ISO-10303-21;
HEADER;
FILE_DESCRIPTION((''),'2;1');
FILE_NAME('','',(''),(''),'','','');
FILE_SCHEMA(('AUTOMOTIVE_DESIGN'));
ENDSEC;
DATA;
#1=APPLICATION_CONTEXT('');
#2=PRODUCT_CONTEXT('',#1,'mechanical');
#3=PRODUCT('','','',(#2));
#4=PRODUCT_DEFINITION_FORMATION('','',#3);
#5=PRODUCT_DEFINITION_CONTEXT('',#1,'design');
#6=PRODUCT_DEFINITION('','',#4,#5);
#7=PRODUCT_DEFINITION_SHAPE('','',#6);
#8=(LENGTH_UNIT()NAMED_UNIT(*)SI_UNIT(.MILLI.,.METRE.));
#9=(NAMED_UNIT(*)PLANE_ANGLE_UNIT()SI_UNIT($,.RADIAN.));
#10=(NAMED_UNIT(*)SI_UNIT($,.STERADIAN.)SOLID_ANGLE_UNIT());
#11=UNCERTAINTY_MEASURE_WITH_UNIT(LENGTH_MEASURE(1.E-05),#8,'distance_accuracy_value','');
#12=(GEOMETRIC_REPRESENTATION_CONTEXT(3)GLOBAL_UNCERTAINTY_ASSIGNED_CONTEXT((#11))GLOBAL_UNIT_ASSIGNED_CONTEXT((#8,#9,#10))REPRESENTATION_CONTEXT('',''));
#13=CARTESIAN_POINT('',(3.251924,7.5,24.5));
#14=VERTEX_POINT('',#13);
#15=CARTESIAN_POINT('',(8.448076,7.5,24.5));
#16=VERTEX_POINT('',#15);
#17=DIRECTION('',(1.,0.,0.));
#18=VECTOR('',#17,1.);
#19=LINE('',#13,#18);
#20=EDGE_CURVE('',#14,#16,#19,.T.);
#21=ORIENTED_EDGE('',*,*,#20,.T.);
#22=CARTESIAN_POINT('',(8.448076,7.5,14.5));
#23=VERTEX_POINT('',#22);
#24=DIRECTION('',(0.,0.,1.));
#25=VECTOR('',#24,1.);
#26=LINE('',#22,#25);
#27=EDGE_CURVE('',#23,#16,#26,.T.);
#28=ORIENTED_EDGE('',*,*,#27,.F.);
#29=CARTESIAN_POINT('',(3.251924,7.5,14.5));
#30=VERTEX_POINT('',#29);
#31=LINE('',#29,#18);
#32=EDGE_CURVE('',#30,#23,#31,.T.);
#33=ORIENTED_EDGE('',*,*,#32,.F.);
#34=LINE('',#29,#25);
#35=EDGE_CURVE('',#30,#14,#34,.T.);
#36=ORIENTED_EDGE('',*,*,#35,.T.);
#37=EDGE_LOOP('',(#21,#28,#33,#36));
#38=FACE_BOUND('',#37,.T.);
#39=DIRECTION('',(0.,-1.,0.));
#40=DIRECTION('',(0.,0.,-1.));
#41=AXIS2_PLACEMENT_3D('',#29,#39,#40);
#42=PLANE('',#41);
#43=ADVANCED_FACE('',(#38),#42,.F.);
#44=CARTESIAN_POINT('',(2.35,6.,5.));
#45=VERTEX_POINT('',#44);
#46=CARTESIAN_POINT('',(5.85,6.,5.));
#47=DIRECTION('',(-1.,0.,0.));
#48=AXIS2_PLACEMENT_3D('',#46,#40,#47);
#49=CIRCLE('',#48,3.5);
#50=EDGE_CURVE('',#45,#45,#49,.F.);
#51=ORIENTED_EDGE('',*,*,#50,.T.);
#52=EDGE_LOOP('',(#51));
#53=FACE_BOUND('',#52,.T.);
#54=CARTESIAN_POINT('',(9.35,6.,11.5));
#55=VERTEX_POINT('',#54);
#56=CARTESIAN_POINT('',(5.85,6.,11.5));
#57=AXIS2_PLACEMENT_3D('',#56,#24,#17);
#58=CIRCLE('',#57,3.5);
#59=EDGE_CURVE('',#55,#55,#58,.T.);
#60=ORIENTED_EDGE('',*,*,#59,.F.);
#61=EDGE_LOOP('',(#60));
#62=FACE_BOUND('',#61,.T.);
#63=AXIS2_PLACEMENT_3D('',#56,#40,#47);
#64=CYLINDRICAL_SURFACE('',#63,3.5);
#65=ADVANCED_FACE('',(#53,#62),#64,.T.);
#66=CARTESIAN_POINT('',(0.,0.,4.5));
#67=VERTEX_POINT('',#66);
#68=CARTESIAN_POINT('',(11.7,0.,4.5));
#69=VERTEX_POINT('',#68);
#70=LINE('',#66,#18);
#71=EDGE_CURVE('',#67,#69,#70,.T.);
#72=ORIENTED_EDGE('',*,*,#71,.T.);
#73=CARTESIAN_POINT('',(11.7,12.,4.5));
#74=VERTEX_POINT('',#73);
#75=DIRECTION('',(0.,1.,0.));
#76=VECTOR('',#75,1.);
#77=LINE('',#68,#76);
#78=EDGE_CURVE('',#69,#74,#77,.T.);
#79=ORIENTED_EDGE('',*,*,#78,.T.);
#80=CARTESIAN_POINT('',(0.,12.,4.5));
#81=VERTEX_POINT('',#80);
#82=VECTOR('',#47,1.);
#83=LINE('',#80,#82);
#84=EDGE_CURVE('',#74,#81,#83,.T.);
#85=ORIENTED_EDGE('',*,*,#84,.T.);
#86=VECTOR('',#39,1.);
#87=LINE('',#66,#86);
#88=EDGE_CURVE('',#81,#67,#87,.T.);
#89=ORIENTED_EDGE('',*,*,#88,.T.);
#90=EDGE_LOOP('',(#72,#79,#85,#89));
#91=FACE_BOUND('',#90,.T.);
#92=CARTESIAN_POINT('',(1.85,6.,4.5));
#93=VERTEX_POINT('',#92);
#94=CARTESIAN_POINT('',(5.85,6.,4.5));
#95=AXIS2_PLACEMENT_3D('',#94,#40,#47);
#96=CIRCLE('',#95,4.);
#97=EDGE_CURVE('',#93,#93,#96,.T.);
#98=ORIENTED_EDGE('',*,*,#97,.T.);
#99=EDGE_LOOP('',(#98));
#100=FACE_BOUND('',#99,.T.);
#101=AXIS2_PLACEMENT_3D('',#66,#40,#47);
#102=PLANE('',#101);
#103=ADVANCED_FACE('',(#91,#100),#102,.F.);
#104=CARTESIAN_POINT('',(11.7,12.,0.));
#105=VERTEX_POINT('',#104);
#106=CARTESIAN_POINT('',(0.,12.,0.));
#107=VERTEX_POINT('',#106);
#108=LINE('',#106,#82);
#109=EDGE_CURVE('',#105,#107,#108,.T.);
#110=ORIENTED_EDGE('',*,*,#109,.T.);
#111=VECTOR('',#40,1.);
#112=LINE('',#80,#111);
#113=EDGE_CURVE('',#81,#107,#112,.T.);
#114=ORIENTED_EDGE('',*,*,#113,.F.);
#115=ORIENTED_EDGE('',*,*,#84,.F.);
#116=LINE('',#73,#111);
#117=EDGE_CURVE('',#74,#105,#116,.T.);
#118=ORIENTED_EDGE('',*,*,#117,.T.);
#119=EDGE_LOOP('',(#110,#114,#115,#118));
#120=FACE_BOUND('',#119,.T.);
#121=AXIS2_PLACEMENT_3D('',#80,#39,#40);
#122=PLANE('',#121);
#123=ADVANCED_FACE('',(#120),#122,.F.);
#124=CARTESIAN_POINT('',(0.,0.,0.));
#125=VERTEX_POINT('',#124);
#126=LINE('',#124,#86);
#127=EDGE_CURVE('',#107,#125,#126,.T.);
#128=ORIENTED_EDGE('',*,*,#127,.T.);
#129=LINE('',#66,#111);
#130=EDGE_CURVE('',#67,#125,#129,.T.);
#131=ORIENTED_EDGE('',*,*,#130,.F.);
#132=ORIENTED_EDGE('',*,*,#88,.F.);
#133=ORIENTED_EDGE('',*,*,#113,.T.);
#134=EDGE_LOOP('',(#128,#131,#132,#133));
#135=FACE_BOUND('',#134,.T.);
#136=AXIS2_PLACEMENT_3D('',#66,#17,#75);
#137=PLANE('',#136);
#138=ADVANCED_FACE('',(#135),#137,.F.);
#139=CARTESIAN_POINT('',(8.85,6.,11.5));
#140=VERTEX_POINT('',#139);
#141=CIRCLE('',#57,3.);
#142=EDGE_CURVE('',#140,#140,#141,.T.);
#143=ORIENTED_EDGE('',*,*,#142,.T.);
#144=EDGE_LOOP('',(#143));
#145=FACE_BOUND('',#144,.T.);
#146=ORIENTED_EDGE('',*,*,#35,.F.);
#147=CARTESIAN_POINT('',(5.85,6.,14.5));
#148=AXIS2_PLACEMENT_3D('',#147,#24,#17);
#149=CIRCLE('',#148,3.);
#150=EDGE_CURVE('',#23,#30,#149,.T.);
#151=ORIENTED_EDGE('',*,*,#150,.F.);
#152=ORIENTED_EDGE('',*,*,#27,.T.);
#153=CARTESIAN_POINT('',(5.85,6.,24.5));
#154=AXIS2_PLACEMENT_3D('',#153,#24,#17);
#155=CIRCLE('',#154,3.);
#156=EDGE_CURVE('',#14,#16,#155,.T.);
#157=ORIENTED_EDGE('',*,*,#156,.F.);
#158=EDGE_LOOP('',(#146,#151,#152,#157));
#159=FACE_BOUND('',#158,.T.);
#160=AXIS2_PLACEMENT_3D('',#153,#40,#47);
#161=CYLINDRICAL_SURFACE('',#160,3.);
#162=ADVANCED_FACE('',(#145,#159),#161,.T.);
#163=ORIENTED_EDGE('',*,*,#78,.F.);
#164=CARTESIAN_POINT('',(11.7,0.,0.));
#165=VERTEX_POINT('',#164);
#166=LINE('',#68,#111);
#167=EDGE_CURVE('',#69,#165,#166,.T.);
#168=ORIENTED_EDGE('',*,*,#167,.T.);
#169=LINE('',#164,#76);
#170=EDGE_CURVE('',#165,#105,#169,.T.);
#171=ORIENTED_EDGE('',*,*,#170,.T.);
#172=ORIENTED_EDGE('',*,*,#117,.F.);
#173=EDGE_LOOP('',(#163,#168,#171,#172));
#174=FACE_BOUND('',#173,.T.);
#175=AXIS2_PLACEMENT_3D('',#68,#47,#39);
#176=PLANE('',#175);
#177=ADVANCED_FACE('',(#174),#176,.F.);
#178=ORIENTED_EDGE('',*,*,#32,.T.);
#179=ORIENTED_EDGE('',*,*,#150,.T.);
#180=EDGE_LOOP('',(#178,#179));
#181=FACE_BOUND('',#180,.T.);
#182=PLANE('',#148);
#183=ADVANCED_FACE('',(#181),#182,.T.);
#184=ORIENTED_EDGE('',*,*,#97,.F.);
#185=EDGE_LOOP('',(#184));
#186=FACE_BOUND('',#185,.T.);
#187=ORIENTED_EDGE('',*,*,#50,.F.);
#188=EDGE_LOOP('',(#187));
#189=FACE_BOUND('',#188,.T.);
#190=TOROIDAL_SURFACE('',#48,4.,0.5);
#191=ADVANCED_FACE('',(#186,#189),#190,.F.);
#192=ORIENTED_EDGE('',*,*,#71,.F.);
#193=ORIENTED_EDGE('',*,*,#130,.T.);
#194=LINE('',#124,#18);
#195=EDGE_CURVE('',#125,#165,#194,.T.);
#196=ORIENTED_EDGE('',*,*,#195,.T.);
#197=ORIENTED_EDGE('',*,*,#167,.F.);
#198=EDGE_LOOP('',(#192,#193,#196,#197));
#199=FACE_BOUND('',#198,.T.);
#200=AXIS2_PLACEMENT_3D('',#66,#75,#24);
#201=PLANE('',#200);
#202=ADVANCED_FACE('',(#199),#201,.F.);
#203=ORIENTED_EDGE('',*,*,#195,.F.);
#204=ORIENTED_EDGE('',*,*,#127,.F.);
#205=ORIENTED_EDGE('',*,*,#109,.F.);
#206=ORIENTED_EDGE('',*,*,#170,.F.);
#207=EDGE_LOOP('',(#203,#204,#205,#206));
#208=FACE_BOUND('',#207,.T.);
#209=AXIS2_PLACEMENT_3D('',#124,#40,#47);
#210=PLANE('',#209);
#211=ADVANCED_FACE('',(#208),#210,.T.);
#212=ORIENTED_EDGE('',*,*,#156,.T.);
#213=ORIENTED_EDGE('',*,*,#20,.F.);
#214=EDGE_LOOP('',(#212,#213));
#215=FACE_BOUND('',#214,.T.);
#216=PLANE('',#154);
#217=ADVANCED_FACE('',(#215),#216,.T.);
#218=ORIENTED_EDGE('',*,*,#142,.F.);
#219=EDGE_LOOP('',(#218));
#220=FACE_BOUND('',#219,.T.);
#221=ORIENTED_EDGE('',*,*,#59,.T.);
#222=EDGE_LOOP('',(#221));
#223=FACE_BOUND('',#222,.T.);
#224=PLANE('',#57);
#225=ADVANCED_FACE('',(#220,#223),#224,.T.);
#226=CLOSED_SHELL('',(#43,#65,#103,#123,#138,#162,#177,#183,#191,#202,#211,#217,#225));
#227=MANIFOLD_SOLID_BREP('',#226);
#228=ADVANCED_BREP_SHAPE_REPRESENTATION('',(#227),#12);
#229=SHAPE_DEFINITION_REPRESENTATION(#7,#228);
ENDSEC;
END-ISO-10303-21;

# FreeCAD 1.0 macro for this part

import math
import FreeCAD as App
import Part
import Sketcher

V = App.Vector


def edges_at(feature, points):
    """Names of the edges that pass closest to the given points."""
    edges = feature.Shape.Edges
    near = lambda p: min(range(len(edges)), key=lambda i: edges[i].distToShape(Part.Vertex(*p))[0])
    return sorted({f"Edge{near(p) + 1}" for p in points})


def add_polygon(sketch, points):
    """Adds a closed chain of lines whose ends are joined by coincident constraints."""
    first, n = sketch.GeometryCount, len(points)
    for a, b in zip(points, points[1:] + points[:1]):
        sketch.addGeometry(Part.LineSegment(App.Vector(*a, 0), App.Vector(*b, 0)), False)
    for i in range(n):
        sketch.addConstraint(Sketcher.Constraint("Coincident", first + i, 2, first + (i + 1) % n, 1))

doc = App.newDocument("Part")
params = doc.addObject("Spreadsheet::Sheet", "Params")
for row, (alias, value) in enumerate([
    ("sketch1_height", "12 mm"),
    ("sketch1_width", "11.7 mm"),
    ("pad1_length", "4.5 mm"),
    ("sketch2_diameter", "7 mm"),
    ("pad2_length", "7 mm"),
    ("sketch3_diameter", "6 mm"),
    ("pad3_length", "13 mm"),
    ("sketch4_radius", "3 mm"),
    ("pocket1_length", "10 mm"),
    ("fillet_radius", "0.5 mm"),
], start=1):
    params.set(f"A{row}", alias)
    params.set(f"B{row}", "=" + value)
    params.setAlias(f"B{row}", alias)

body = doc.addObject("PartDesign::Body", "Body")

# Sketch on XY plane
sketch1 = body.newObject("Sketcher::SketchObject", "Sketch")
sketch1.AttachmentSupport = (doc.getObject("XY_Plane"), [""])
sketch1.MapMode = "FlatFace"
add_polygon(sketch1, [(0, 12), (0, 0), (12, 0), (12, 12)])  # lines 0-3
sketch1.addConstraint([
    Sketcher.Constraint("Vertical", 0),
    Sketcher.Constraint("Horizontal", 1),
    Sketcher.Constraint("Vertical", 2),
    Sketcher.Constraint("Horizontal", 3),
    Sketcher.Constraint("Coincident", 0, 2, -1, 1),
    Sketcher.Constraint("DistanceY", 0, 2, 0, 1, 12.0),
    Sketcher.Constraint("DistanceX", 1, 1, 1, 2, 11.7),
])
sketch1.setExpression("Constraints[9]", "Params.sketch1_height")
sketch1.setExpression("Constraints[10]", "Params.sketch1_width")
pad1 = body.newObject("PartDesign::Pad", "Pad")
pad1.Profile = sketch1
pad1.setExpression("Length", "Params.pad1_length")

# Sketch on XY plane
sketch2 = body.newObject("Sketcher::SketchObject", "Sketch001")
sketch2.AttachmentSupport = (doc.getObject("XY_Plane"), [""])
sketch2.MapMode = "FlatFace"
sketch2.AttachmentOffset = App.Placement(V(0, 0, 4.5), App.Rotation())
sketch2.addGeometry(Part.Circle(V(5.8, 6, 0), V(0, 0, 1), 3.5), False)
sketch2.addConstraint([
    Sketcher.Constraint("Diameter", 0, 7.0),
    Sketcher.Constraint("DistanceY", -1, 1, 0, 3, 6.0),
    Sketcher.Constraint("DistanceX", -1, 1, 0, 3, 5.85),
])
sketch2.setExpression("Constraints[0]", "Params.sketch2_diameter")
pad2 = body.newObject("PartDesign::Pad", "Pad001")
pad2.Profile = sketch2
pad2.setExpression("Length", "Params.pad2_length")

# Sketch on XY plane
sketch3 = body.newObject("Sketcher::SketchObject", "Sketch002")
sketch3.AttachmentSupport = (doc.getObject("XY_Plane"), [""])
sketch3.MapMode = "FlatFace"
sketch3.AttachmentOffset = App.Placement(V(0, 0, 11.5), App.Rotation())
sketch3.addGeometry(Part.Circle(V(5.8, 6, 0), V(0, 0, 1), 3), False)
sketch3.addConstraint([
    Sketcher.Constraint("Diameter", 0, 6.0),
    Sketcher.Constraint("DistanceY", -1, 1, 0, 3, 6.0),
    Sketcher.Constraint("DistanceX", -1, 1, 0, 3, 5.85),
])
sketch3.setExpression("Constraints[0]", "Params.sketch3_diameter")
pad3 = body.newObject("PartDesign::Pad", "Pad002")
pad3.Profile = sketch3
pad3.setExpression("Length", "Params.pad3_length")

# Sketch on XY plane
sketch4 = body.newObject("Sketcher::SketchObject", "Sketch003")
sketch4.AttachmentSupport = (doc.getObject("XY_Plane"), [""])
sketch4.MapMode = "FlatFace"
sketch4.AttachmentOffset = App.Placement(V(0, 0, 14.5), App.Rotation())
sketch4.addGeometry([
    Part.LineSegment(V(3.3, 7.5, 0), V(8.4, 7.5, 0)),
    Part.ArcOfCircle(Part.Circle(V(5.8, 6, 0), V(0, 0, 1), 3), math.radians(30), math.radians(150)),
], False)
sketch4.addConstraint([
    Sketcher.Constraint("Coincident", 0, 1, 1, 2),
    Sketcher.Constraint("Coincident", 1, 1, 0, 2),
    Sketcher.Constraint("Horizontal", 0),
    Sketcher.Constraint("Radius", 1, 3.0),
    Sketcher.Constraint("DistanceY", -1, 1, 1, 3, 6.0),
    Sketcher.Constraint("DistanceY", -1, 1, 0, 1, 7.5),
    Sketcher.Constraint("DistanceX", -1, 1, 1, 3, 5.85),
])
sketch4.setExpression("Constraints[3]", "Params.sketch4_radius")
pocket1 = body.newObject("PartDesign::Pocket", "Pocket")
pocket1.Profile = sketch4
pocket1.setExpression("Length", "Params.pocket1_length")
pocket1.Reversed = True
doc.recompute()

fillet = body.newObject("PartDesign::Fillet", "Fillet")
fillet.Base = (pocket1, edges_at(pocket1, [(2.35, 6, 4.5)]))
fillet.setExpression("Radius", "Params.fillet_radius")

doc.recompute()
